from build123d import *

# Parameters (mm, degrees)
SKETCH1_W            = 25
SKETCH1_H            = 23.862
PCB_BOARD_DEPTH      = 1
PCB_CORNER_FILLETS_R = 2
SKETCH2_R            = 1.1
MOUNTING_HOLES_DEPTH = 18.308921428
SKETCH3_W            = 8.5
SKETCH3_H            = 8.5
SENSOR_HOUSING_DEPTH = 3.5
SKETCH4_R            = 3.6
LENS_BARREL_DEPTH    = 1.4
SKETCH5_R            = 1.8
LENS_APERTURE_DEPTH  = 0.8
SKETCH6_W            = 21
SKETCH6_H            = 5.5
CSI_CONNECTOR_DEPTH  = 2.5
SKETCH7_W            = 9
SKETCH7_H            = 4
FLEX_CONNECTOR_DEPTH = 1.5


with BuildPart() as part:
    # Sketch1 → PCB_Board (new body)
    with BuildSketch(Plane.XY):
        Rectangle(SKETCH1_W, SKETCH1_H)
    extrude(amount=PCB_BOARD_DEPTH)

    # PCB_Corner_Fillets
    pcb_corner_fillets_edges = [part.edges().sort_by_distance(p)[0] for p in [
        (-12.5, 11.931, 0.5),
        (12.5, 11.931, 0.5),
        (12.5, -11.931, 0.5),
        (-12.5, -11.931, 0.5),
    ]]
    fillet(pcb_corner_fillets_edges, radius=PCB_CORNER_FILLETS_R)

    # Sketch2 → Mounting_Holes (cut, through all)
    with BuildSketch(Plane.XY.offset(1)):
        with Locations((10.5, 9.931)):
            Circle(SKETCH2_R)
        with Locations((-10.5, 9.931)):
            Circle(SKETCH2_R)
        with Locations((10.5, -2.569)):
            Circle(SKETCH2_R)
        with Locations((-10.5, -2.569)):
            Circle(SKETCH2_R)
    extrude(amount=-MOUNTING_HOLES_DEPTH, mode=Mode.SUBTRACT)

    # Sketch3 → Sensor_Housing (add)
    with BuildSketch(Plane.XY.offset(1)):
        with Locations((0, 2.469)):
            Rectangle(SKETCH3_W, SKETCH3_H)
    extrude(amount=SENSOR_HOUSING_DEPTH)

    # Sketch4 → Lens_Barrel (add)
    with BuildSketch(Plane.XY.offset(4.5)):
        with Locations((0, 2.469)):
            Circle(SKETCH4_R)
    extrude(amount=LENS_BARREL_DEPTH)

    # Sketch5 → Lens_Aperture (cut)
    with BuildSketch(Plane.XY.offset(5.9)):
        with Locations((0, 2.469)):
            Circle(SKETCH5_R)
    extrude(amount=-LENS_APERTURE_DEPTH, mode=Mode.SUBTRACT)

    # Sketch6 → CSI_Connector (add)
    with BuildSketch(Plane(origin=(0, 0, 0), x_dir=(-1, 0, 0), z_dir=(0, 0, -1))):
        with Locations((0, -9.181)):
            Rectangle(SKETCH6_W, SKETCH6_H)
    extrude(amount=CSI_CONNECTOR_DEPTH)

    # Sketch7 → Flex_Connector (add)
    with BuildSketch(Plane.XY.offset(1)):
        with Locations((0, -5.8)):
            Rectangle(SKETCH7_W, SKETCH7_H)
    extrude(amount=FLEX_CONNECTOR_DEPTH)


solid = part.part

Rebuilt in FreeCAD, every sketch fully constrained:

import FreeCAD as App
import Part
import Sketcher

V = App.Vector


def edges_at(feature, points):
    """Names of the edges that pass closest to the given points."""
    edges = feature.Shape.Edges
    near = lambda p: min(range(len(edges)), key=lambda i: edges[i].distToShape(Part.Vertex(*p))[0])
    return sorted({f"Edge{near(p) + 1}" for p in points})

doc = App.newDocument("Part")
body = doc.addObject("PartDesign::Body", "Body")

sketch1 = doc.addObject("Sketcher::SketchObject", "Sketch")
body.addObject(sketch1)
sketch1.AttachmentSupport = (doc.XY_Plane, [""])
sketch1.MapMode = "FlatFace"
sketch1.addGeometry(Part.LineSegment(V(-12, 12, 0), V(-12, -12, 0)), False)
sketch1.addGeometry(Part.LineSegment(V(-12, -12, 0), V(12, -12, 0)), False)
sketch1.addGeometry(Part.LineSegment(V(12, -12, 0), V(12, 12, 0)), False)
sketch1.addGeometry(Part.LineSegment(V(12, 12, 0), V(-12, 12, 0)), False)
sketch1.addConstraint(Sketcher.Constraint("Coincident", 0, 2, 1, 1))
sketch1.addConstraint(Sketcher.Constraint("Coincident", 1, 2, 2, 1))
sketch1.addConstraint(Sketcher.Constraint("Coincident", 2, 2, 3, 1))
sketch1.addConstraint(Sketcher.Constraint("Coincident", 3, 2, 0, 1))
sketch1.addConstraint(Sketcher.Constraint("Vertical", 0))
sketch1.addConstraint(Sketcher.Constraint("Horizontal", 1))
sketch1.addConstraint(Sketcher.Constraint("Vertical", 2))
sketch1.addConstraint(Sketcher.Constraint("Horizontal", 3))
sketch1.addConstraint(Sketcher.Constraint("Symmetric", 0, 2, 2, 2, -1, 1))
sketch1.addConstraint(Sketcher.Constraint("DistanceX", 1, 1, 1, 2, 25.0))
sketch1.addConstraint(Sketcher.Constraint("DistanceY", 0, 2, 0, 1, 23.862))
pad1 = doc.addObject("PartDesign::Pad", "Pad")
body.addObject(pad1)
pad1.Profile = sketch1
pad1.Length = 1
doc.recompute()

fillet = doc.addObject("PartDesign::Fillet", "Fillet")
body.addObject(fillet)
fillet.Base = (pad1, edges_at(pad1, [
    (-12.5, 11.931, 0.5),
    (12.5, 11.931, 0.5),
    (12.5, -11.931, 0.5),
    (-12.5, -11.931, 0.5),
]))
fillet.Radius = 2

sketch2 = doc.addObject("Sketcher::SketchObject", "Sketch001")
body.addObject(sketch2)
sketch2.AttachmentSupport = (doc.XY_Plane, [""])
sketch2.MapMode = "FlatFace"
sketch2.AttachmentOffset = App.Placement(V(0, 0, 1), App.Rotation())
sketch2.addGeometry(Part.Circle(V(10.5, 9.9, 0), V(0, 0, 1), 1.1), False)
sketch2.addGeometry(Part.Circle(V(-10.5, 9.9, 0), V(0, 0, 1), 1.1), False)
sketch2.addGeometry(Part.Circle(V(10.5, -2.6, 0), V(0, 0, 1), 1.1), False)
sketch2.addGeometry(Part.Circle(V(-10.5, -2.6, 0), V(0, 0, 1), 1.1), False)
sketch2.addConstraint(Sketcher.Constraint("Equal", 0, 1))
sketch2.addConstraint(Sketcher.Constraint("Equal", 1, 2))
sketch2.addConstraint(Sketcher.Constraint("Equal", 2, 3))
sketch2.addConstraint(Sketcher.Constraint("Symmetric", 0, 3, 1, 3, -2))
sketch2.addConstraint(Sketcher.Constraint("Symmetric", 2, 3, 3, 3, -2))
sketch2.addConstraint(Sketcher.Constraint("Vertical", 0, 3, 2, 3))
sketch2.addConstraint(Sketcher.Constraint("Diameter", 0, 2.2))
sketch2.addConstraint(Sketcher.Constraint("DistanceX", 1, 3, 0, 3, 21.0))
sketch2.addConstraint(Sketcher.Constraint("DistanceY", 2, 3, 0, 3, 12.5))
sketch2.addConstraint(Sketcher.Constraint("DistanceY", -1, 1, 0, 3, 9.931))
pocket1 = doc.addObject("PartDesign::Pocket", "Pocket")
body.addObject(pocket1)
pocket1.Profile = sketch2
pocket1.Type = "ThroughAll"

sketch3 = doc.addObject("Sketcher::SketchObject", "Sketch002")
body.addObject(sketch3)
sketch3.AttachmentSupport = (doc.XY_Plane, [""])
sketch3.MapMode = "FlatFace"
sketch3.AttachmentOffset = App.Placement(V(0, 0, 1), App.Rotation())
sketch3.addGeometry(Part.LineSegment(V(-4, 7, 0), V(-4, -2, 0)), False)
sketch3.addGeometry(Part.LineSegment(V(-4, -2, 0), V(4, -2, 0)), False)
sketch3.addGeometry(Part.LineSegment(V(4, -2, 0), V(4, 7, 0)), False)
sketch3.addGeometry(Part.LineSegment(V(4, 7, 0), V(-4, 7, 0)), False)
sketch3.addConstraint(Sketcher.Constraint("Coincident", 0, 2, 1, 1))
sketch3.addConstraint(Sketcher.Constraint("Coincident", 1, 2, 2, 1))
sketch3.addConstraint(Sketcher.Constraint("Coincident", 2, 2, 3, 1))
sketch3.addConstraint(Sketcher.Constraint("Coincident", 3, 2, 0, 1))
sketch3.addConstraint(Sketcher.Constraint("Vertical", 0))
sketch3.addConstraint(Sketcher.Constraint("Horizontal", 1))
sketch3.addConstraint(Sketcher.Constraint("Vertical", 2))
sketch3.addConstraint(Sketcher.Constraint("Horizontal", 3))
sketch3.addConstraint(Sketcher.Constraint("Equal", 3, 0))
sketch3.addConstraint(Sketcher.Constraint("DistanceX", 1, 1, 1, 2, 8.5))
sketch3.addConstraint(Sketcher.Constraint("DistanceX", 0, 2, -1, 1, 4.25))
sketch3.addConstraint(Sketcher.Constraint("DistanceY", 0, 2, -1, 1, 1.781))
pad2 = doc.addObject("PartDesign::Pad", "Pad001")
body.addObject(pad2)
pad2.Profile = sketch3
pad2.Length = 3.5

sketch4 = doc.addObject("Sketcher::SketchObject", "Sketch003")
body.addObject(sketch4)
sketch4.AttachmentSupport = (doc.XY_Plane, [""])
sketch4.MapMode = "FlatFace"
sketch4.AttachmentOffset = App.Placement(V(0, 0, 4.5), App.Rotation())
sketch4.addGeometry(Part.Circle(V(0, 2.5, 0), V(0, 0, 1), 3.6), False)
sketch4.addConstraint(Sketcher.Constraint("PointOnObject", 0, 3, -2))
sketch4.addConstraint(Sketcher.Constraint("Diameter", 0, 7.2))
sketch4.addConstraint(Sketcher.Constraint("DistanceY", -1, 1, 0, 3, 2.469))
pad3 = doc.addObject("PartDesign::Pad", "Pad002")
body.addObject(pad3)
pad3.Profile = sketch4
pad3.Length = 1.4

sketch5 = doc.addObject("Sketcher::SketchObject", "Sketch004")
body.addObject(sketch5)
sketch5.AttachmentSupport = (doc.XY_Plane, [""])
sketch5.MapMode = "FlatFace"
sketch5.AttachmentOffset = App.Placement(V(0, 0, 5.9), App.Rotation())
sketch5.addGeometry(Part.Circle(V(0, 2.5, 0), V(0, 0, 1), 1.8), False)
sketch5.addConstraint(Sketcher.Constraint("PointOnObject", 0, 3, -2))
sketch5.addConstraint(Sketcher.Constraint("Diameter", 0, 3.6))
sketch5.addConstraint(Sketcher.Constraint("DistanceY", -1, 1, 0, 3, 2.469))
pocket2 = doc.addObject("PartDesign::Pocket", "Pocket001")
body.addObject(pocket2)
pocket2.Profile = sketch5
pocket2.Length = 0.8

sketch6 = doc.addObject("Sketcher::SketchObject", "Sketch005")
body.addObject(sketch6)
sketch6.AttachmentSupport = (doc.XY_Plane, [""])
sketch6.MapMode = "FlatFace"
sketch6.addGeometry(Part.LineSegment(V(10, -6, 0), V(10, -12, 0)), False)
sketch6.addGeometry(Part.LineSegment(V(10, -12, 0), V(-10, -12, 0)), False)
sketch6.addGeometry(Part.LineSegment(V(-10, -12, 0), V(-10, -6, 0)), False)
sketch6.addGeometry(Part.LineSegment(V(-10, -6, 0), V(10, -6, 0)), False)
sketch6.addConstraint(Sketcher.Constraint("Coincident", 0, 2, 1, 1))
sketch6.addConstraint(Sketcher.Constraint("Coincident", 1, 2, 2, 1))
sketch6.addConstraint(Sketcher.Constraint("Coincident", 2, 2, 3, 1))
sketch6.addConstraint(Sketcher.Constraint("Coincident", 3, 2, 0, 1))
sketch6.addConstraint(Sketcher.Constraint("Vertical", 0))
sketch6.addConstraint(Sketcher.Constraint("Horizontal", 1))
sketch6.addConstraint(Sketcher.Constraint("Vertical", 2))
sketch6.addConstraint(Sketcher.Constraint("Horizontal", 3))
sketch6.addConstraint(Sketcher.Constraint("DistanceX", 1, 2, 1, 1, 21.0))
sketch6.addConstraint(Sketcher.Constraint("DistanceY", 0, 2, 0, 1, 5.5))
sketch6.addConstraint(Sketcher.Constraint("DistanceX", -1, 1, 0, 2, 10.5))
sketch6.addConstraint(Sketcher.Constraint("DistanceY", 0, 2, -1, 1, 11.931))
pad4 = doc.addObject("PartDesign::Pad", "Pad003")
body.addObject(pad4)
pad4.Profile = sketch6
pad4.Length = 2.5
pad4.Reversed = True

sketch7 = doc.addObject("Sketcher::SketchObject", "Sketch006")
body.addObject(sketch7)
sketch7.AttachmentSupport = (doc.XY_Plane, [""])
sketch7.MapMode = "FlatFace"
sketch7.AttachmentOffset = App.Placement(V(0, 0, 1), App.Rotation())
sketch7.addGeometry(Part.LineSegment(V(-4.5, -3.8, 0), V(-4.5, -7.8, 0)), False)
sketch7.addGeometry(Part.LineSegment(V(-4.5, -7.8, 0), V(4.5, -7.8, 0)), False)
sketch7.addGeometry(Part.LineSegment(V(4.5, -7.8, 0), V(4.5, -3.8, 0)), False)
sketch7.addGeometry(Part.LineSegment(V(4.5, -3.8, 0), V(-4.5, -3.8, 0)), False)
sketch7.addConstraint(Sketcher.Constraint("Coincident", 0, 2, 1, 1))
sketch7.addConstraint(Sketcher.Constraint("Coincident", 1, 2, 2, 1))
sketch7.addConstraint(Sketcher.Constraint("Coincident", 2, 2, 3, 1))
sketch7.addConstraint(Sketcher.Constraint("Coincident", 3, 2, 0, 1))
sketch7.addConstraint(Sketcher.Constraint("Vertical", 0))
sketch7.addConstraint(Sketcher.Constraint("Horizontal", 1))
sketch7.addConstraint(Sketcher.Constraint("Vertical", 2))
sketch7.addConstraint(Sketcher.Constraint("Horizontal", 3))
sketch7.addConstraint(Sketcher.Constraint("DistanceX", 1, 1, 1, 2, 9.0))
sketch7.addConstraint(Sketcher.Constraint("DistanceY", 0, 2, 0, 1, 4.0))
sketch7.addConstraint(Sketcher.Constraint("DistanceX", 0, 2, -1, 1, 4.5))
sketch7.addConstraint(Sketcher.Constraint("DistanceY", 0, 2, -1, 1, 7.8))
pad5 = doc.addObject("PartDesign::Pad", "Pad004")
body.addObject(pad5)
pad5.Profile = sketch7
pad5.Length = 1.5

doc.recompute()
